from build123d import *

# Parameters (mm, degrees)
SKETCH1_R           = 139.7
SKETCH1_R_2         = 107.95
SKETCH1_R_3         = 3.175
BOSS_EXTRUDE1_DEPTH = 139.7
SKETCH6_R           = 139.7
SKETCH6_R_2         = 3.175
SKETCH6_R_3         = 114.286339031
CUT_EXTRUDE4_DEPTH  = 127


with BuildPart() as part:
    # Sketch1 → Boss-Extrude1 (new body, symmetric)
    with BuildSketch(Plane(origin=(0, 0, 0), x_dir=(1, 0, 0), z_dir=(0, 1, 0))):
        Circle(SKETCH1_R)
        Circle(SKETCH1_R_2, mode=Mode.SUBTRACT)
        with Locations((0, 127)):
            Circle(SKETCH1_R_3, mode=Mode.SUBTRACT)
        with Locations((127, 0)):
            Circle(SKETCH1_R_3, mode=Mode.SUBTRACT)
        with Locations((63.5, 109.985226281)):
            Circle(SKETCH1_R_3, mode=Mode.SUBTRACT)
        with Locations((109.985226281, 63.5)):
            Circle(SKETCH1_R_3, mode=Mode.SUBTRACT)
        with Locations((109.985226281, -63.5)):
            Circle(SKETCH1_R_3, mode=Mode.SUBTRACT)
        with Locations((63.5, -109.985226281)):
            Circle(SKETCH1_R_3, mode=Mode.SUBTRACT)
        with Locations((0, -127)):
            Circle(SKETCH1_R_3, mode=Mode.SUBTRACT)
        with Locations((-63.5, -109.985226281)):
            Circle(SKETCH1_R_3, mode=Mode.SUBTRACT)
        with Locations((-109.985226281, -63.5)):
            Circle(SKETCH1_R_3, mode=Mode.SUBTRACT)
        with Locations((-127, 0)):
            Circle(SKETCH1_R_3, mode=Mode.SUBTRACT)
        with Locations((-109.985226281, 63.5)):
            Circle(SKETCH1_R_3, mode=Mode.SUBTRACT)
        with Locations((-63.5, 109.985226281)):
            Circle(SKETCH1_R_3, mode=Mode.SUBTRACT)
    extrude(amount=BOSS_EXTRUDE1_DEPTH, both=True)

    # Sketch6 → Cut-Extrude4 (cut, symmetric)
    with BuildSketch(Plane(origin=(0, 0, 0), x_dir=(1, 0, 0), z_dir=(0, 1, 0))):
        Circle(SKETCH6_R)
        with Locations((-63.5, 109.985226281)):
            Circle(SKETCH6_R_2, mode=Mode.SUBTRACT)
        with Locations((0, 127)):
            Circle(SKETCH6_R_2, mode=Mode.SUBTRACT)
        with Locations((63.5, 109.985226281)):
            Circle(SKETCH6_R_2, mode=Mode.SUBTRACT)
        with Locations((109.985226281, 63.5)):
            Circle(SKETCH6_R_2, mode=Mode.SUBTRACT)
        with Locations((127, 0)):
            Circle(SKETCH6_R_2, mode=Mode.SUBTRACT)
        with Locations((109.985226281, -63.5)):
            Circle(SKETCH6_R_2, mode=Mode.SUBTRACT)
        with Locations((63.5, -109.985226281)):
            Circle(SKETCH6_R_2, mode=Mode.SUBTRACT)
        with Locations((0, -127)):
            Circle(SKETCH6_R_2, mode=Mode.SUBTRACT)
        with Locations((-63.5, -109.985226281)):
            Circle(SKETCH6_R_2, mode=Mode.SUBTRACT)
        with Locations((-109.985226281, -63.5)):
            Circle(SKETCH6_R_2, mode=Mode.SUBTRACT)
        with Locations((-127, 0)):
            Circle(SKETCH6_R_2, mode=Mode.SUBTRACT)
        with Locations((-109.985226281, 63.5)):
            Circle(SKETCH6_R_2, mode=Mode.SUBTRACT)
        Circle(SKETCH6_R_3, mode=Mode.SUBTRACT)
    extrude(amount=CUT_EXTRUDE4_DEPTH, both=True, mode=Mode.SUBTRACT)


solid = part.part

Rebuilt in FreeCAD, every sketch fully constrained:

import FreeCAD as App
import Part
import Sketcher
from FreeCAD import Vector
Q = App.Units.Quantity

doc = App.newDocument("Part")
body = doc.addObject("PartDesign::Body", "Body")

# Sketch on XZ plane
sketch1 = body.newObject("Sketcher::SketchObject", "Sketch")
sketch1.AttachmentSupport = (doc.getObject("XZ_Plane"), [""])
sketch1.MapMode = "FlatFace"
sketch1.addGeometry(Part.Circle(Vector(0, 0, 0), Vector(0, 0, 1), 139.7), False)
sketch1.addGeometry(Part.Circle(Vector(-63.5, 110, 0), Vector(0, 0, 1), 3.2), False)
sketch1.addGeometry(Part.Circle(Vector(-110, 63.5, 0), Vector(0, 0, 1), 3.2), False)
sketch1.addGeometry(Part.Circle(Vector(0, 127, 0), Vector(0, 0, 1), 3.2), False)
sketch1.addGeometry(Part.Circle(Vector(63.5, 110, 0), Vector(0, 0, 1), 3.2), False)
sketch1.addGeometry(Part.Circle(Vector(110, 63.5, 0), Vector(0, 0, 1), 3.2), False)
sketch1.addGeometry(Part.Circle(Vector(-127, 0, 0), Vector(0, 0, 1), 3.2), False)
sketch1.addGeometry(Part.Circle(Vector(-110, -63.5, 0), Vector(0, 0, 1), 3.2), False)
sketch1.addGeometry(Part.Circle(Vector(-63.5, -110, 0), Vector(0, 0, 1), 3.2), False)
sketch1.addGeometry(Part.Circle(Vector(0, 0, 0), Vector(0, 0, 1), 108), False)
sketch1.addGeometry(Part.Circle(Vector(127, 0, 0), Vector(0, 0, 1), 3.2), False)
sketch1.addGeometry(Part.Circle(Vector(110, -63.5, 0), Vector(0, 0, 1), 3.2), False)
sketch1.addGeometry(Part.Circle(Vector(0, -127, 0), Vector(0, 0, 1), 3.2), False)
sketch1.addGeometry(Part.Circle(Vector(63.5, -110, 0), Vector(0, 0, 1), 3.2), False)
sketch1.addConstraint(Sketcher.Constraint("Coincident", 0, 3, -1, 1))
sketch1.addConstraint(Sketcher.Constraint("Coincident", 9, 3, -1, 1))
sketch1.addConstraint(Sketcher.Constraint("Equal", 1, 2))
sketch1.addConstraint(Sketcher.Constraint("Equal", 2, 3))
sketch1.addConstraint(Sketcher.Constraint("Equal", 3, 4))
sketch1.addConstraint(Sketcher.Constraint("Equal", 4, 5))
sketch1.addConstraint(Sketcher.Constraint("Equal", 5, 6))
sketch1.addConstraint(Sketcher.Constraint("Equal", 6, 7))
sketch1.addConstraint(Sketcher.Constraint("Equal", 7, 8))
sketch1.addConstraint(Sketcher.Constraint("Equal", 8, 10))
sketch1.addConstraint(Sketcher.Constraint("Equal", 10, 11))
sketch1.addConstraint(Sketcher.Constraint("Equal", 11, 12))
sketch1.addConstraint(Sketcher.Constraint("Equal", 12, 13))
sketch1.addConstraint(Sketcher.Constraint("Symmetric", 5, 3, 7, 3, -1, 1))
sketch1.addConstraint(Sketcher.Constraint("Symmetric", 4, 3, 8, 3, -1, 1))
sketch1.addConstraint(Sketcher.Constraint("Symmetric", 6, 3, 10, 3, -1, 1))
sketch1.addConstraint(Sketcher.Constraint("Symmetric", 2, 3, 11, 3, -1, 1))
sketch1.addConstraint(Sketcher.Constraint("Symmetric", 3, 3, 12, 3, -1, 1))
sketch1.addConstraint(Sketcher.Constraint("Symmetric", 1, 3, 13, 3, -1, 1))
sketch1.addConstraint(Sketcher.Constraint("Symmetric", 1, 3, 4, 3, -2))
sketch1.addConstraint(Sketcher.Constraint("Symmetric", 2, 3, 5, 3, -2))
sketch1.addConstraint(Sketcher.Constraint("PointOnObject", 3, 3, -2))
sketch1.addConstraint(Sketcher.Constraint("PointOnObject", 6, 3, -1))
sketch1.addConstraint(Sketcher.Constraint("Diameter", 0, Q("11 in")))
sketch1.addConstraint(Sketcher.Constraint("Diameter", 9, Q("8.5 in")))
sketch1.addConstraint(Sketcher.Constraint("Diameter", 1, Q("0.25 in")))
sketch1.addConstraint(Sketcher.Constraint("DistanceY", -1, 1, 3, 3, Q("5 in")))
sketch1.addConstraint(Sketcher.Constraint("DistanceX", 6, 3, -1, 1, Q("5 in")))
sketch1.addConstraint(Sketcher.Constraint("DistanceX", 1, 3, 4, 3, Q("5 in")))
sketch1.addConstraint(Sketcher.Constraint("DistanceY", 7, 3, 2, 3, Q("5 in")))
sketch1.addConstraint(Sketcher.Constraint("DistanceY", -1, 1, 1, 3, 109.985226))
sketch1.addConstraint(Sketcher.Constraint("DistanceX", 2, 3, -1, 1, 109.985226))
pad1 = body.newObject("PartDesign::Pad", "Pad")
pad1.Profile = sketch1
pad1.Length = Q("11 in")
pad1.Midplane = True

# Sketch on XZ plane
sketch2 = body.newObject("Sketcher::SketchObject", "Sketch001")
sketch2.AttachmentSupport = (doc.getObject("XZ_Plane"), [""])
sketch2.MapMode = "FlatFace"
sketch2.addGeometry(Part.Circle(Vector(0, 0, 0), Vector(0, 0, 1), 139.7), False)
sketch2.addGeometry(Part.Circle(Vector(-63.5, 110, 0), Vector(0, 0, 1), 3.2), False)
sketch2.addGeometry(Part.Circle(Vector(-110, 63.5, 0), Vector(0, 0, 1), 3.2), False)
sketch2.addGeometry(Part.Circle(Vector(0, 127, 0), Vector(0, 0, 1), 3.2), False)
sketch2.addGeometry(Part.Circle(Vector(63.5, 110, 0), Vector(0, 0, 1), 3.2), False)
sketch2.addGeometry(Part.Circle(Vector(110, 63.5, 0), Vector(0, 0, 1), 3.2), False)
sketch2.addGeometry(Part.Circle(Vector(-127, 0, 0), Vector(0, 0, 1), 3.2), False)
sketch2.addGeometry(Part.Circle(Vector(-110, -63.5, 0), Vector(0, 0, 1), 3.2), False)
sketch2.addGeometry(Part.Circle(Vector(-63.5, -110, 0), Vector(0, 0, 1), 3.2), False)
sketch2.addGeometry(Part.Circle(Vector(0, 0, 0), Vector(0, 0, 1), 114.3), False)
sketch2.addGeometry(Part.Circle(Vector(127, 0, 0), Vector(0, 0, 1), 3.2), False)
sketch2.addGeometry(Part.Circle(Vector(110, -63.5, 0), Vector(0, 0, 1), 3.2), False)
sketch2.addGeometry(Part.Circle(Vector(0, -127, 0), Vector(0, 0, 1), 3.2), False)
sketch2.addGeometry(Part.Circle(Vector(63.5, -110, 0), Vector(0, 0, 1), 3.2), False)
sketch2.addConstraint(Sketcher.Constraint("Coincident", 0, 3, -1, 1))
sketch2.addConstraint(Sketcher.Constraint("Coincident", 9, 3, -1, 1))
sketch2.addConstraint(Sketcher.Constraint("Equal", 1, 2))
sketch2.addConstraint(Sketcher.Constraint("Equal", 2, 3))
sketch2.addConstraint(Sketcher.Constraint("Equal", 3, 4))
sketch2.addConstraint(Sketcher.Constraint("Equal", 4, 5))
sketch2.addConstraint(Sketcher.Constraint("Equal", 5, 6))
sketch2.addConstraint(Sketcher.Constraint("Equal", 6, 7))
sketch2.addConstraint(Sketcher.Constraint("Equal", 7, 8))
sketch2.addConstraint(Sketcher.Constraint("Equal", 8, 10))
sketch2.addConstraint(Sketcher.Constraint("Equal", 10, 11))
sketch2.addConstraint(Sketcher.Constraint("Equal", 11, 12))
sketch2.addConstraint(Sketcher.Constraint("Equal", 12, 13))
sketch2.addConstraint(Sketcher.Constraint("Symmetric", 5, 3, 7, 3, -1, 1))
sketch2.addConstraint(Sketcher.Constraint("Symmetric", 4, 3, 8, 3, -1, 1))
sketch2.addConstraint(Sketcher.Constraint("Symmetric", 6, 3, 10, 3, -1, 1))
sketch2.addConstraint(Sketcher.Constraint("Symmetric", 2, 3, 11, 3, -1, 1))
sketch2.addConstraint(Sketcher.Constraint("Symmetric", 3, 3, 12, 3, -1, 1))
sketch2.addConstraint(Sketcher.Constraint("Symmetric", 1, 3, 13, 3, -1, 1))
sketch2.addConstraint(Sketcher.Constraint("Symmetric", 1, 3, 4, 3, -2))
sketch2.addConstraint(Sketcher.Constraint("Symmetric", 2, 3, 5, 3, -2))
sketch2.addConstraint(Sketcher.Constraint("PointOnObject", 3, 3, -2))
sketch2.addConstraint(Sketcher.Constraint("PointOnObject", 6, 3, -1))
sketch2.addConstraint(Sketcher.Constraint("Diameter", 0, Q("11 in")))
sketch2.addConstraint(Sketcher.Constraint("Diameter", 1, Q("0.25 in")))
sketch2.addConstraint(Sketcher.Constraint("DistanceY", -1, 1, 3, 3, Q("5 in")))
sketch2.addConstraint(Sketcher.Constraint("DistanceX", 6, 3, -1, 1, Q("5 in")))
sketch2.addConstraint(Sketcher.Constraint("DistanceX", 1, 3, 4, 3, Q("5 in")))
sketch2.addConstraint(Sketcher.Constraint("DistanceY", 7, 3, 2, 3, Q("5 in")))
sketch2.addConstraint(Sketcher.Constraint("Diameter", 9, 228.572678))
sketch2.addConstraint(Sketcher.Constraint("DistanceY", -1, 1, 1, 3, 109.985226))
sketch2.addConstraint(Sketcher.Constraint("DistanceX", 2, 3, -1, 1, 109.985226))
pocket1 = body.newObject("PartDesign::Pocket", "Pocket")
pocket1.Profile = sketch2
pocket1.Length = Q("10 in")
pocket1.Midplane = True

doc.recompute()
